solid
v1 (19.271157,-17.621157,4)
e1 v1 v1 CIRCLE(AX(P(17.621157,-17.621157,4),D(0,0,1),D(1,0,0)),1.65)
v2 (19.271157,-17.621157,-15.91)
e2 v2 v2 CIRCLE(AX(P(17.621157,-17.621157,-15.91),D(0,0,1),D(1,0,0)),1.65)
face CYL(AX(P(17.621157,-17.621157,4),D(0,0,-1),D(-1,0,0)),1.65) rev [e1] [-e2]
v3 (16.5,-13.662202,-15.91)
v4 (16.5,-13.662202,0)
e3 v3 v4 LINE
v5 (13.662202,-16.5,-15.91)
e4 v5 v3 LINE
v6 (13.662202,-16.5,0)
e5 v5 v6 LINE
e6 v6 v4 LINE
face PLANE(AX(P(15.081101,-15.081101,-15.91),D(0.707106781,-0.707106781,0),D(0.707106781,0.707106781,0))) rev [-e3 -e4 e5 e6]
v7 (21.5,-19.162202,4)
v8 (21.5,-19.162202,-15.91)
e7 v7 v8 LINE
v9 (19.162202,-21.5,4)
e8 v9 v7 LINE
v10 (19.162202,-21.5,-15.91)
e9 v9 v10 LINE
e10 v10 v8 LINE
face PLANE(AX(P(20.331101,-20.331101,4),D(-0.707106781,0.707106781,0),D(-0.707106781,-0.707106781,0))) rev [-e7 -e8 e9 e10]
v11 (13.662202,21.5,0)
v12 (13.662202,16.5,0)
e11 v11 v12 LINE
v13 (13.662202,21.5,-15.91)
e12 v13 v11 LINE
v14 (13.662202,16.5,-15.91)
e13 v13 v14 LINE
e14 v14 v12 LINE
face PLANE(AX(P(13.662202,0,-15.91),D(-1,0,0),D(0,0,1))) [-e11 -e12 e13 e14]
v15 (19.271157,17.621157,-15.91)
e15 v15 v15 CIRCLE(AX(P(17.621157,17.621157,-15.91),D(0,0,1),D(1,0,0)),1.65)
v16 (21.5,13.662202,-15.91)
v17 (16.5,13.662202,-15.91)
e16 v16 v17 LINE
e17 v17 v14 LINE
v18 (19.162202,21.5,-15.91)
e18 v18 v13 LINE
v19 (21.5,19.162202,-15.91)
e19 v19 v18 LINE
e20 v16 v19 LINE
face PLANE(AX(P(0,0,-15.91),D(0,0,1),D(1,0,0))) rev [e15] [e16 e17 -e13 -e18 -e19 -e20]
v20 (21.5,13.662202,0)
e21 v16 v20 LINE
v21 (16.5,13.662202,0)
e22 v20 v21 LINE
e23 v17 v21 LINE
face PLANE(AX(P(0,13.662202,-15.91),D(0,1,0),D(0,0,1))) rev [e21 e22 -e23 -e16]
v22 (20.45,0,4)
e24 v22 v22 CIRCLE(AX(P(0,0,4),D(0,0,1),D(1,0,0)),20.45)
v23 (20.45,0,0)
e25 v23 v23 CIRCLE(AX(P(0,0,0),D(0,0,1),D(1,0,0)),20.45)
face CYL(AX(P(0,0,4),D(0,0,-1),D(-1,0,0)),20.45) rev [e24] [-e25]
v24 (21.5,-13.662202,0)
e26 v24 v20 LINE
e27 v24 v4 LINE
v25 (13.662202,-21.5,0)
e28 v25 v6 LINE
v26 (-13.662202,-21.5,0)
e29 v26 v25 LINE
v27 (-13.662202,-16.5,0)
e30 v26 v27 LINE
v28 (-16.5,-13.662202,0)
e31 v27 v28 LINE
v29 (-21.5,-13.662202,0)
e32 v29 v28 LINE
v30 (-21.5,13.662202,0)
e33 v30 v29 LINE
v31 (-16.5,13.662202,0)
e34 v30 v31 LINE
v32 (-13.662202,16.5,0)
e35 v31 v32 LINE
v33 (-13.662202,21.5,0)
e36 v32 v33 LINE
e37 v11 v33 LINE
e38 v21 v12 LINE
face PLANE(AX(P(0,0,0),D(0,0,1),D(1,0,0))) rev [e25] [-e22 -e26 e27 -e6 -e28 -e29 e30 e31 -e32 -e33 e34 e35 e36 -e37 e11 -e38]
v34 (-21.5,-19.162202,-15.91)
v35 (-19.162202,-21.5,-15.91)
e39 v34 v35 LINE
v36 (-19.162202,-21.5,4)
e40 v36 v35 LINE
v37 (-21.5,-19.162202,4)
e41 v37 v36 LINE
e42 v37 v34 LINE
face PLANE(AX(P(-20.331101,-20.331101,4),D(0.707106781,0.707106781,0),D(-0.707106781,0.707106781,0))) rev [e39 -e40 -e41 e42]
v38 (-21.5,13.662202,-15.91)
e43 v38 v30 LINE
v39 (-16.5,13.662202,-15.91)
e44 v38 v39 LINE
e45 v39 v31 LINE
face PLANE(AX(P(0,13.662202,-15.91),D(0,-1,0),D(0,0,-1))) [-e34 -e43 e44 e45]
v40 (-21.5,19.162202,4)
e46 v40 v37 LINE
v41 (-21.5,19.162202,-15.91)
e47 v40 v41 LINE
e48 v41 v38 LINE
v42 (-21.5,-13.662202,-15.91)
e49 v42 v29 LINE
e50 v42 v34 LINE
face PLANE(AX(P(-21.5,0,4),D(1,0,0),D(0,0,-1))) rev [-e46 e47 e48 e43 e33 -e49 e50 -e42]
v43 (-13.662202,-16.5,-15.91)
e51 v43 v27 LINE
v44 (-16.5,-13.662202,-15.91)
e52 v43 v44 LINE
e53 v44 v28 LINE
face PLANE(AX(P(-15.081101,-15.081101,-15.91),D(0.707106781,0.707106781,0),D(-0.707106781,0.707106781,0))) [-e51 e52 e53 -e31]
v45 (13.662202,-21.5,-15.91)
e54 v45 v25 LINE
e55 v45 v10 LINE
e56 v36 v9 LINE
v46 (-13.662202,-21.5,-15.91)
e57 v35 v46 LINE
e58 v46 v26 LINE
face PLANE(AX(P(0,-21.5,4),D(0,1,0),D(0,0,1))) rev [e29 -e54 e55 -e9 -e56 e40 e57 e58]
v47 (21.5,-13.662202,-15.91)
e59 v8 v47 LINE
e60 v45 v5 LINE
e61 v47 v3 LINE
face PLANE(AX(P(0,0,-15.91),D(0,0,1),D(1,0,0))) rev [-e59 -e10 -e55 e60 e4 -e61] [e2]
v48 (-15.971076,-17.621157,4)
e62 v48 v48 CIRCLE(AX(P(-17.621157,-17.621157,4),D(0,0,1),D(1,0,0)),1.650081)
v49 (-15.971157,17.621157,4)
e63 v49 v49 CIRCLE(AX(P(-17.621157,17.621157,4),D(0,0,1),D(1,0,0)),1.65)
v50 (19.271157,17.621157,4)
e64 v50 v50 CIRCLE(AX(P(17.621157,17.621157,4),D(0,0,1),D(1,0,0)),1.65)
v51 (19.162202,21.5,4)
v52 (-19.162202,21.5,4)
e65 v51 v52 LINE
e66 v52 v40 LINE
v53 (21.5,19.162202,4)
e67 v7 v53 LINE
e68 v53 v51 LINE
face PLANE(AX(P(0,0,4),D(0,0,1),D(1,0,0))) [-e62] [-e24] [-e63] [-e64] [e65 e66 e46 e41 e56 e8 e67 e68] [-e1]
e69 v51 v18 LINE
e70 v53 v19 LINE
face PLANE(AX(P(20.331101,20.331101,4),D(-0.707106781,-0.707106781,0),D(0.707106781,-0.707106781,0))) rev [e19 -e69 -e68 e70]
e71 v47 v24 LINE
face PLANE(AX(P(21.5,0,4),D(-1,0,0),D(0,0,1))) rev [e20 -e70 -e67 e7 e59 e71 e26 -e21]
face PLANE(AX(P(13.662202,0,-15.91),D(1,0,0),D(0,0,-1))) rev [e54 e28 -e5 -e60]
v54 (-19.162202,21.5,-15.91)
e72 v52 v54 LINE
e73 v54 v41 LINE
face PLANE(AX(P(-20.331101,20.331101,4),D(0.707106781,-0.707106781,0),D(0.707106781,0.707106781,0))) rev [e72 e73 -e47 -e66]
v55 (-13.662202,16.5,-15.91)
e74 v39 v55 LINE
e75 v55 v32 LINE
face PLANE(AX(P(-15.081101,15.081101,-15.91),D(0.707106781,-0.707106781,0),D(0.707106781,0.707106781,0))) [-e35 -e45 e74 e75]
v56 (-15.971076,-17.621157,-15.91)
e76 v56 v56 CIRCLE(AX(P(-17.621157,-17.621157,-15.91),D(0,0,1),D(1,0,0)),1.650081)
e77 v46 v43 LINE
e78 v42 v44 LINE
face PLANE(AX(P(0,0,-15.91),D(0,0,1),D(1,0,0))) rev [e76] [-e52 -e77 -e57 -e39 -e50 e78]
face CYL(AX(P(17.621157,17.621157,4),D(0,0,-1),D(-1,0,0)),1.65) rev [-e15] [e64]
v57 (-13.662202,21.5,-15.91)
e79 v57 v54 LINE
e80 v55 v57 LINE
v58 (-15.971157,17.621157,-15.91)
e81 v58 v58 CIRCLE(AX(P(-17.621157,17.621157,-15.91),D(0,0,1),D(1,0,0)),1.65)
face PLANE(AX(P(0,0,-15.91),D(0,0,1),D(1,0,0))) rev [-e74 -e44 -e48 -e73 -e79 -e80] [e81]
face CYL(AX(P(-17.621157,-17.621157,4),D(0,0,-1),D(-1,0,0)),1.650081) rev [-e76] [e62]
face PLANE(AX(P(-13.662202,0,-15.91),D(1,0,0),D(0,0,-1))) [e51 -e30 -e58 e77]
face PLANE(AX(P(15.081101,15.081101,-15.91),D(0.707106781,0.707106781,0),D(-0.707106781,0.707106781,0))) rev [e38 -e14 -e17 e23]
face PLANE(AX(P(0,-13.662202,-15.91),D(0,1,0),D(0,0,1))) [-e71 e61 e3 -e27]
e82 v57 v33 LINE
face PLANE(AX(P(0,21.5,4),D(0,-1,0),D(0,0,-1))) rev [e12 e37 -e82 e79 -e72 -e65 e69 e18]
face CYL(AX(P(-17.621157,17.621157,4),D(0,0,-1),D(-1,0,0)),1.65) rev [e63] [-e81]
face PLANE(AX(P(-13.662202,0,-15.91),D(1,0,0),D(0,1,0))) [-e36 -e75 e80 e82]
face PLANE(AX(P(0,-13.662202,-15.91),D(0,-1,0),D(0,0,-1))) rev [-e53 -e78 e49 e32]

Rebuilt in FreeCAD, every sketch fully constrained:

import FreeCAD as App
import Part
import Sketcher
from FreeCAD import Vector
Q = App.Units.Quantity

doc = App.newDocument("Part")
params = doc.addObject("Spreadsheet::Sheet", "Params")
for row, (alias, value) in enumerate([
    ("sketch1_diameter", "40.9 mm"),
    ("sketch1_diameter2", "3.3 mm"),
    ("pad1_length", "4 mm"),
    ("sketch2_diameter", "3.3 mm"),
    ("sketch2_width", "5 mm"),
    ("sketch2_width2", "5.5 mm"),
    ("pad2_length", "15.91 mm"),
], start=1):
    params.set(f"A{row}", alias)
    params.set(f"B{row}", "=" + value)
    params.setAlias(f"B{row}", alias)

body = doc.addObject("PartDesign::Body", "Body")

# Sketch on XY plane
sketch1 = body.newObject("Sketcher::SketchObject", "Sketch")
sketch1.AttachmentSupport = (doc.getObject("XY_Plane"), [""])
sketch1.MapMode = "FlatFace"
sketch1.addGeometry(Part.LineSegment(Vector(19.162202, -21.5, 0), Vector(21.5, -19.162202, 0)), False)
sketch1.addGeometry(Part.LineSegment(Vector(21.5, -19.162202, 0), Vector(21.5, 19.162202, 0)), False)
sketch1.addGeometry(Part.LineSegment(Vector(21.5, 19.162202, 0), Vector(19.162202, 21.5, 0)), False)
sketch1.addGeometry(Part.LineSegment(Vector(19.162202, 21.5, 0), Vector(-19.162202, 21.5, 0)), False)
sketch1.addGeometry(Part.LineSegment(Vector(-19.162202, 21.5, 0), Vector(-21.5, 19.162202, 0)), False)
sketch1.addGeometry(Part.LineSegment(Vector(-21.5, 19.162202, 0), Vector(-21.5, -19.162202, 0)), False)
sketch1.addGeometry(Part.LineSegment(Vector(-21.5, -19.162202, 0), Vector(-19.162202, -21.5, 0)), False)
sketch1.addGeometry(Part.LineSegment(Vector(-19.162202, -21.5, 0), Vector(19.162202, -21.5, 0)), False)
sketch1.addGeometry(Part.Circle(Vector(0, 0, 0), Vector(0, 0, 1), 20.45), False)
sketch1.addGeometry(Part.Circle(Vector(-17.621157, -17.621157, 0), Vector(0, 0, 1), 1.650081), False)
sketch1.addGeometry(Part.Circle(Vector(17.621157, -17.621157, 0), Vector(0, 0, 1), 1.65), False)
sketch1.addGeometry(Part.Circle(Vector(-17.621157, 17.621157, 0), Vector(0, 0, 1), 1.65), False)
sketch1.addGeometry(Part.Circle(Vector(17.621157, 17.621157, 0), Vector(0, 0, 1), 1.65), False)
sketch1.addConstraint(Sketcher.Constraint("Coincident", 0, 2, 1, 1))
sketch1.addConstraint(Sketcher.Constraint("Coincident", 1, 2, 2, 1))
sketch1.addConstraint(Sketcher.Constraint("Coincident", 2, 2, 3, 1))
sketch1.addConstraint(Sketcher.Constraint("Coincident", 3, 2, 4, 1))
sketch1.addConstraint(Sketcher.Constraint("Coincident", 4, 2, 5, 1))
sketch1.addConstraint(Sketcher.Constraint("Coincident", 5, 2, 6, 1))
sketch1.addConstraint(Sketcher.Constraint("Coincident", 6, 2, 7, 1))
sketch1.addConstraint(Sketcher.Constraint("Coincident", 7, 2, 0, 1))
sketch1.addConstraint(Sketcher.Constraint("Vertical", 1))
sketch1.addConstraint(Sketcher.Constraint("Horizontal", 3))
sketch1.addConstraint(Sketcher.Constraint("Vertical", 5))
sketch1.addConstraint(Sketcher.Constraint("Horizontal", 7))
sketch1.addConstraint(Sketcher.Constraint("Coincident", 8, 3, -1, 1))
sketch1.addConstraint(Sketcher.Constraint("Equal", 10, 11))
sketch1.addConstraint(Sketcher.Constraint("Equal", 11, 12))
sketch1.addConstraint(Sketcher.Constraint("Symmetric", 10, 3, 11, 3, -1, 1))
sketch1.addConstraint(Sketcher.Constraint("Symmetric", 9, 3, 12, 3, -1, 1))
sketch1.addConstraint(Sketcher.Constraint("Symmetric", 0, 2, 4, 2, -1, 1))
sketch1.addConstraint(Sketcher.Constraint("Symmetric", 2, 2, 6, 2, -1, 1))
sketch1.addConstraint(Sketcher.Constraint("Symmetric", 9, 3, 10, 3, -2))
sketch1.addConstraint(Sketcher.Constraint("Perpendicular", 0, 2))
sketch1.addConstraint(Sketcher.Constraint("Perpendicular", 2, 4))
sketch1.addConstraint(Sketcher.Constraint("Perpendicular", 4, 6))
sketch1.addConstraint(Sketcher.Constraint("Horizontal", 1, 2, 4, 2))
sketch1.addConstraint(Sketcher.Constraint("Vertical", 3, 2, 6, 2))
sketch1.addConstraint(Sketcher.Constraint("Equal", 7, 1))
sketch1.addConstraint(Sketcher.Constraint("Diameter", 8, Q("40.9 mm")))
sketch1.addConstraint(Sketcher.Constraint("Diameter", 10, Q("3.3 mm")))
sketch1.addConstraint(Sketcher.Constraint("DistanceX", -1, 1, 0, 2, Q("21.5 mm")))
sketch1.addConstraint(Sketcher.Constraint("Diameter", 9, Q("3.300162 mm")))
sketch1.addConstraint(Sketcher.Constraint("DistanceX", 3, 2, 3, 1, Q("38.324405 mm")))
sketch1.addConstraint(Sketcher.Constraint("DistanceY", 0, 2, 12, 3, Q("36.783359 mm")))
sketch1.addConstraint(Sketcher.Constraint("DistanceX", 11, 3, 2, 2, Q("36.783359 mm")))
sketch1.setExpression("Constraints[26]", "Params.sketch1_diameter")
sketch1.setExpression("Constraints[27]", "Params.sketch1_diameter2")
pad1 = body.newObject("PartDesign::Pad", "Pad")
pad1.Profile = sketch1
pad1.setExpression("Length", "Params.pad1_length")

# Sketch on XY plane
sketch2 = body.newObject("Sketcher::SketchObject", "Sketch001")
sketch2.AttachmentSupport = (doc.getObject("XY_Plane"), [""])
sketch2.MapMode = "FlatFace"
sketch2.AttachmentOffset = App.Placement(Vector(0, 0, -15.91), App.Rotation())
sketch2.addGeometry(Part.LineSegment(Vector(13.662202, -21.5, 0), Vector(19.162202, -21.5, 0)), False)
sketch2.addGeometry(Part.LineSegment(Vector(19.162202, -21.5, 0), Vector(21.5, -19.162202, 0)), False)
sketch2.addGeometry(Part.LineSegment(Vector(21.5, -19.162202, 0), Vector(21.5, -13.662202, 0)), False)
sketch2.addGeometry(Part.LineSegment(Vector(21.5, -13.662202, 0), Vector(16.5, -13.662202, 0)), False)
sketch2.addGeometry(Part.LineSegment(Vector(16.5, -13.662202, 0), Vector(13.662202, -16.5, 0)), False)
sketch2.addGeometry(Part.LineSegment(Vector(13.662202, -16.5, 0), Vector(13.662202, -21.5, 0)), False)
sketch2.addGeometry(Part.Circle(Vector(17.621157, -17.621157, 0), Vector(0, 0, 1), 1.65), False)
sketch2.addGeometry(Part.LineSegment(Vector(16.5, 13.662202, 0), Vector(21.5, 13.662202, 0)), False)
sketch2.addGeometry(Part.LineSegment(Vector(21.5, 13.662202, 0), Vector(21.5, 19.162202, 0)), False)
sketch2.addGeometry(Part.LineSegment(Vector(21.5, 19.162202, 0), Vector(19.162202, 21.5, 0)), False)
sketch2.addGeometry(Part.LineSegment(Vector(19.162202, 21.5, 0), Vector(13.662202, 21.5, 0)), False)
sketch2.addGeometry(Part.LineSegment(Vector(13.662202, 21.5, 0), Vector(13.662202, 16.5, 0)), False)
sketch2.addGeometry(Part.LineSegment(Vector(13.662202, 16.5, 0), Vector(16.5, 13.662202, 0)), False)
sketch2.addGeometry(Part.Circle(Vector(17.621157, 17.621157, 0), Vector(0, 0, 1), 1.65), False)
sketch2.addGeometry(Part.LineSegment(Vector(-21.5, 19.162202, 0), Vector(-21.5, 13.662202, 0)), False)
sketch2.addGeometry(Part.LineSegment(Vector(-21.5, 13.662202, 0), Vector(-16.5, 13.662202, 0)), False)
sketch2.addGeometry(Part.LineSegment(Vector(-16.5, 13.662202, 0), Vector(-13.662202, 16.5, 0)), False)
sketch2.addGeometry(Part.LineSegment(Vector(-13.662202, 16.5, 0), Vector(-13.662202, 21.5, 0)), False)
sketch2.addGeometry(Part.LineSegment(Vector(-13.662202, 21.5, 0), Vector(-19.162202, 21.5, 0)), False)
sketch2.addGeometry(Part.LineSegment(Vector(-19.162202, 21.5, 0), Vector(-21.5, 19.162202, 0)), False)
sketch2.addGeometry(Part.Circle(Vector(-17.621157, 17.621157, 0), Vector(0, 0, 1), 1.65), False)
sketch2.addGeometry(Part.LineSegment(Vector(-19.162202, -21.5, 0), Vector(-13.662202, -21.5, 0)), False)
sketch2.addGeometry(Part.LineSegment(Vector(-13.662202, -21.5, 0), Vector(-13.662202, -16.5, 0)), False)
sketch2.addGeometry(Part.LineSegment(Vector(-13.662202, -16.5, 0), Vector(-16.5, -13.662202, 0)), False)
sketch2.addGeometry(Part.LineSegment(Vector(-16.5, -13.662202, 0), Vector(-21.5, -13.662202, 0)), False)
sketch2.addGeometry(Part.LineSegment(Vector(-21.5, -13.662202, 0), Vector(-21.5, -19.162202, 0)), False)
sketch2.addGeometry(Part.LineSegment(Vector(-21.5, -19.162202, 0), Vector(-19.162202, -21.5, 0)), False)
sketch2.addGeometry(Part.Circle(Vector(-17.621157, -17.621157, 0), Vector(0, 0, 1), 1.650081), False)
sketch2.addConstraint(Sketcher.Constraint("Coincident", 0, 2, 1, 1))
sketch2.addConstraint(Sketcher.Constraint("Coincident", 1, 2, 2, 1))
sketch2.addConstraint(Sketcher.Constraint("Coincident", 2, 2, 3, 1))
sketch2.addConstraint(Sketcher.Constraint("Coincident", 3, 2, 4, 1))
sketch2.addConstraint(Sketcher.Constraint("Coincident", 4, 2, 5, 1))
sketch2.addConstraint(Sketcher.Constraint("Coincident", 5, 2, 0, 1))
sketch2.addConstraint(Sketcher.Constraint("Coincident", 7, 2, 8, 1))
sketch2.addConstraint(Sketcher.Constraint("Coincident", 8, 2, 9, 1))
sketch2.addConstraint(Sketcher.Constraint("Coincident", 9, 2, 10, 1))
sketch2.addConstraint(Sketcher.Constraint("Coincident", 10, 2, 11, 1))
sketch2.addConstraint(Sketcher.Constraint("Coincident", 11, 2, 12, 1))
sketch2.addConstraint(Sketcher.Constraint("Coincident", 12, 2, 7, 1))
sketch2.addConstraint(Sketcher.Constraint("Coincident", 14, 2, 15, 1))
sketch2.addConstraint(Sketcher.Constraint("Coincident", 15, 2, 16, 1))
sketch2.addConstraint(Sketcher.Constraint("Coincident", 16, 2, 17, 1))
sketch2.addConstraint(Sketcher.Constraint("Coincident", 17, 2, 18, 1))
sketch2.addConstraint(Sketcher.Constraint("Coincident", 18, 2, 19, 1))
sketch2.addConstraint(Sketcher.Constraint("Coincident", 19, 2, 14, 1))
sketch2.addConstraint(Sketcher.Constraint("Coincident", 21, 2, 22, 1))
sketch2.addConstraint(Sketcher.Constraint("Coincident", 22, 2, 23, 1))
sketch2.addConstraint(Sketcher.Constraint("Coincident", 23, 2, 24, 1))
sketch2.addConstraint(Sketcher.Constraint("Coincident", 24, 2, 25, 1))
sketch2.addConstraint(Sketcher.Constraint("Coincident", 25, 2, 26, 1))
sketch2.addConstraint(Sketcher.Constraint("Coincident", 26, 2, 21, 1))
sketch2.addConstraint(Sketcher.Constraint("Horizontal", 0))
sketch2.addConstraint(Sketcher.Constraint("Vertical", 2))
sketch2.addConstraint(Sketcher.Constraint("Horizontal", 3))
sketch2.addConstraint(Sketcher.Constraint("Vertical", 5))
sketch2.addConstraint(Sketcher.Constraint("Horizontal", 7))
sketch2.addConstraint(Sketcher.Constraint("Vertical", 8))
sketch2.addConstraint(Sketcher.Constraint("Horizontal", 10))
sketch2.addConstraint(Sketcher.Constraint("Vertical", 11))
sketch2.addConstraint(Sketcher.Constraint("Vertical", 14))
sketch2.addConstraint(Sketcher.Constraint("Horizontal", 15))
sketch2.addConstraint(Sketcher.Constraint("Vertical", 17))
sketch2.addConstraint(Sketcher.Constraint("Horizontal", 18))
sketch2.addConstraint(Sketcher.Constraint("Horizontal", 21))
sketch2.addConstraint(Sketcher.Constraint("Vertical", 22))
sketch2.addConstraint(Sketcher.Constraint("Horizontal", 24))
sketch2.addConstraint(Sketcher.Constraint("Vertical", 25))
sketch2.addConstraint(Sketcher.Constraint("Equal", 6, 13))
sketch2.addConstraint(Sketcher.Constraint("Equal", 13, 20))
sketch2.addConstraint(Sketcher.Constraint("Symmetric", 6, 3, 20, 3, -1, 1))
sketch2.addConstraint(Sketcher.Constraint("Symmetric", 13, 3, 27, 3, -1, 1))
sketch2.addConstraint(Sketcher.Constraint("Symmetric", 2, 2, 14, 2, -1, 1))
sketch2.addConstraint(Sketcher.Constraint("Symmetric", 4, 2, 16, 2, -1, 1))
sketch2.addConstraint(Sketcher.Constraint("Symmetric", 0, 2, 18, 2, -1, 1))
sketch2.addConstraint(Sketcher.Constraint("Symmetric", 10, 2, 21, 2, -1, 1))
sketch2.addConstraint(Sketcher.Constraint("Symmetric", 12, 2, 23, 2, -1, 1))
sketch2.addConstraint(Sketcher.Constraint("Symmetric", 8, 2, 25, 2, -1, 1))
sketch2.addConstraint(Sketcher.Constraint("Symmetric", 13, 3, 20, 3, -2))
sketch2.addConstraint(Sketcher.Constraint("Symmetric", 7, 2, 14, 2, -2))
sketch2.addConstraint(Sketcher.Constraint("Symmetric", 11, 2, 16, 2, -2))
sketch2.addConstraint(Sketcher.Constraint("Symmetric", 9, 2, 18, 2, -2))
sketch2.addConstraint(Sketcher.Constraint("Parallel", 1, 4))
sketch2.addConstraint(Sketcher.Constraint("Perpendicular", 4, 9))
sketch2.addConstraint(Sketcher.Constraint("Parallel", 9, 12))
sketch2.addConstraint(Sketcher.Constraint("Perpendicular", 12, 16))
sketch2.addConstraint(Sketcher.Constraint("Parallel", 16, 19))
sketch2.addConstraint(Sketcher.Constraint("Perpendicular", 19, 23))
sketch2.addConstraint(Sketcher.Constraint("Parallel", 23, 26))
sketch2.addConstraint(Sketcher.Constraint("Horizontal", 8, 2, 19, 2))
sketch2.addConstraint(Sketcher.Constraint("Equal", 21, 2))
sketch2.addConstraint(Sketcher.Constraint("Diameter", 6, Q("3.3 mm")))
sketch2.addConstraint(Sketcher.Constraint("DistanceX", 3, 2, 3, 1, Q("5 mm")))
sketch2.addConstraint(Sketcher.Constraint("DistanceX", 0, 1, 0, 2, Q("5.5 mm")))
sketch2.addConstraint(Sketcher.Constraint("DistanceX", 14, 2, 12, 2, Q("38 mm")))
sketch2.addConstraint(Sketcher.Constraint("DistanceY", 0, 2, -1, 1, Q("21.5 mm")))
sketch2.addConstraint(Sketcher.Constraint("Diameter", 27, Q("3.300162 mm")))
sketch2.addConstraint(Sketcher.Constraint("Distance", 4, Q("4.013252 mm")))
sketch2.addConstraint(Sketcher.Constraint("DistanceX", 27, 3, 0, 2, Q("36.783359 mm")))
sketch2.addConstraint(Sketcher.Constraint("DistanceY", 1, 2, 13, 3, Q("36.783359 mm")))
sketch2.setExpression("Constraints[63]", "Params.sketch2_diameter")
sketch2.setExpression("Constraints[64]", "Params.sketch2_width")
sketch2.setExpression("Constraints[65]", "Params.sketch2_width2")
pad2 = body.newObject("PartDesign::Pad", "Pad001")
pad2.Profile = sketch2
pad2.setExpression("Length", "Params.pad2_length")

doc.recompute()
